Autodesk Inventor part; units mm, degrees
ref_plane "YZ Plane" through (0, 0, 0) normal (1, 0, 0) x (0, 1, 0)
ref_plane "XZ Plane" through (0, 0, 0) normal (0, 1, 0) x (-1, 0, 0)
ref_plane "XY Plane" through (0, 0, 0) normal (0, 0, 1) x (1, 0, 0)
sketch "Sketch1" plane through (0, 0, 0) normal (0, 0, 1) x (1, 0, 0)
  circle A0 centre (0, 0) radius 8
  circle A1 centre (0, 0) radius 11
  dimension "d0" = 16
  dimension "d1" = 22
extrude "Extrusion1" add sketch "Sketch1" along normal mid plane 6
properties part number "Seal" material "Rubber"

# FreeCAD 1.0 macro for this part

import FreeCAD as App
import Part
import Sketcher

doc = App.newDocument("Part")
params = doc.addObject("Spreadsheet::Sheet", "Params")
for row, (alias, value) in enumerate([
    ("sketch1_diameter", "22 mm"),
    ("sketch1_diameter2", "16 mm"),
    ("pad1_length", "6 mm"),
], start=1):
    params.set(f"A{row}", alias)
    params.set(f"B{row}", "=" + value)
    params.setAlias(f"B{row}", alias)

body = doc.addObject("PartDesign::Body", "Body")

sketch1 = body.newObject("Sketcher::SketchObject", "Sketch")
sketch1.AttachmentSupport = (doc.getObject("XY_Plane"), [""])
sketch1.MapMode = "FlatFace"
sketch1.addGeometry(Part.Circle(App.Vector(0, 0, 0), App.Vector(0, 0, 1), 11), False)
sketch1.addGeometry(Part.Circle(App.Vector(0, 0, 0), App.Vector(0, 0, 1), 8), False)
sketch1.addConstraint(Sketcher.Constraint("Coincident", 0, 3, -1, 1))
sketch1.addConstraint(Sketcher.Constraint("Coincident", 1, 3, -1, 1))
sketch1.addConstraint(Sketcher.Constraint("Diameter", 0, 22.0))
sketch1.addConstraint(Sketcher.Constraint("Diameter", 1, 16.0))
sketch1.setExpression("Constraints[2]", "Params.sketch1_diameter")
sketch1.setExpression("Constraints[3]", "Params.sketch1_diameter2")
pad1 = body.newObject("PartDesign::Pad", "Pad")
pad1.Profile = sketch1
pad1.setExpression("Length", "Params.pad1_length")
pad1.Midplane = True

doc.recompute()
